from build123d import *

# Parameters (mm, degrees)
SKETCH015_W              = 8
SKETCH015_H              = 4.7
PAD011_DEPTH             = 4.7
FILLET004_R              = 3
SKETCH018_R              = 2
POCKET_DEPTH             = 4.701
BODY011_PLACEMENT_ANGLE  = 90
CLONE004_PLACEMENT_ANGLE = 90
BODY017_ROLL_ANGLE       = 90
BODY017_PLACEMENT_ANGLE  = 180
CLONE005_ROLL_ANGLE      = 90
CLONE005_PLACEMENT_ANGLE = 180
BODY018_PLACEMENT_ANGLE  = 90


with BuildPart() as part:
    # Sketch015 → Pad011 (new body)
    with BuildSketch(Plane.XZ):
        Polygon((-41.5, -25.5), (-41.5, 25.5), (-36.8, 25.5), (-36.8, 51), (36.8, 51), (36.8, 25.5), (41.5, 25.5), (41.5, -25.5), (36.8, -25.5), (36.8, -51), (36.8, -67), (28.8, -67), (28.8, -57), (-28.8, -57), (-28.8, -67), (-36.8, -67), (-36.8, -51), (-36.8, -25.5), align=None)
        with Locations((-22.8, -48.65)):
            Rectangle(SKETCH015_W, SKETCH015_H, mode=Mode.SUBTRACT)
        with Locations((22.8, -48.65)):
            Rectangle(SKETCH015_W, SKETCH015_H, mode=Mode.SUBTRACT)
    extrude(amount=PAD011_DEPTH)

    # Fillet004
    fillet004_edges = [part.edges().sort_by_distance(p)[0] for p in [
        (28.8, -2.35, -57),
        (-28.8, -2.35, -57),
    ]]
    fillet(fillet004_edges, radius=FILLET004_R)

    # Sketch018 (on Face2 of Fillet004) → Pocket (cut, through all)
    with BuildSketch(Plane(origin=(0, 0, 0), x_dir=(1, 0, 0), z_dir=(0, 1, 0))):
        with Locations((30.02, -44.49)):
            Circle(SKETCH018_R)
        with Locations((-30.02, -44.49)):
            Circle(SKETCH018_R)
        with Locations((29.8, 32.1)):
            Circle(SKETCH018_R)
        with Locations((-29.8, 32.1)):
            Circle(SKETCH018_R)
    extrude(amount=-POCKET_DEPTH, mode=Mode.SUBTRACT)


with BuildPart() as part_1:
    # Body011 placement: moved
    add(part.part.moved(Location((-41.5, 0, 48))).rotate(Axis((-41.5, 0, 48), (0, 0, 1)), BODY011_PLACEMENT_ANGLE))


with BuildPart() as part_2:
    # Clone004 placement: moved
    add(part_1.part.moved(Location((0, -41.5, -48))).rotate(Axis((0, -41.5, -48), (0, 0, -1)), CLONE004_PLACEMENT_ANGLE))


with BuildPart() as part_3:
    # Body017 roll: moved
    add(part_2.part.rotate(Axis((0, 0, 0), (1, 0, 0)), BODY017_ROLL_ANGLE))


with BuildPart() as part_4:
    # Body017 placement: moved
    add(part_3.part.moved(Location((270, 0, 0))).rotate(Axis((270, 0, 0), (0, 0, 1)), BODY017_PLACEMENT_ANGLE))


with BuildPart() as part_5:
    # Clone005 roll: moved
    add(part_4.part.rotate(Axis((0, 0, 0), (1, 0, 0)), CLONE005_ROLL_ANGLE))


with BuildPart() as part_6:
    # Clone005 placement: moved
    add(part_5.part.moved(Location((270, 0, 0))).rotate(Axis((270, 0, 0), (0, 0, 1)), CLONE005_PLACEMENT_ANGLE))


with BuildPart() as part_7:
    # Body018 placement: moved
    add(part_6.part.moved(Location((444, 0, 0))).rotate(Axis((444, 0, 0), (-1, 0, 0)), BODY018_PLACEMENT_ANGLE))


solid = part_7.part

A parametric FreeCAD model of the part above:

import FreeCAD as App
import Part
import Sketcher

V = App.Vector


def edges_at(feature, points):
    """Names of the edges that pass closest to the given points."""
    edges = feature.Shape.Edges
    near = lambda p: min(range(len(edges)), key=lambda i: edges[i].distToShape(Part.Vertex(*p))[0])
    return sorted({f"Edge{near(p) + 1}" for p in points})


def add_polygon(sketch, points):
    """Adds a closed chain of lines whose ends are joined by coincident constraints."""
    first, n = sketch.GeometryCount, len(points)
    for a, b in zip(points, points[1:] + points[:1]):
        sketch.addGeometry(Part.LineSegment(App.Vector(*a, 0), App.Vector(*b, 0)), False)
    for i in range(n):
        sketch.addConstraint(Sketcher.Constraint("Coincident", first + i, 2, first + (i + 1) % n, 1))

doc = App.newDocument("Part")
body = doc.addObject("PartDesign::Body", "Body")

# Sketch on XZ plane
sketch1 = body.newObject("Sketcher::SketchObject", "Sketch")
sketch1.AttachmentSupport = (doc.getObject("XZ_Plane"), [""])
sketch1.MapMode = "FlatFace"
add_polygon(sketch1, [(-41.5, 25.5), (-41.5, -25.5), (-36.8, -25.5), (-36.8, -67), (-28.8, -67), (-28.8, -57), (28.8, -57), (28.8, -67), (36.8, -67), (36.8, -25.5), (41.5, -25.5), (41.5, 25.5), (36.8, 25.5), (36.8, 51), (-36.8, 51), (-36.8, 25.5)])  # lines 0-15
add_polygon(sketch1, [(18.8, -51), (18.8, -46.3), (26.8, -46.3), (26.8, -51)])  # lines 16-19
add_polygon(sketch1, [(-26.8, -51), (-26.8, -46.3), (-18.8, -46.3), (-18.8, -51)])  # lines 20-23
sketch1.addConstraint(Sketcher.Constraint("Vertical", 0))
sketch1.addConstraint(Sketcher.Constraint("Horizontal", 1))
sketch1.addConstraint(Sketcher.Constraint("Vertical", 2))
sketch1.addConstraint(Sketcher.Constraint("Horizontal", 3))
sketch1.addConstraint(Sketcher.Constraint("Vertical", 4))
sketch1.addConstraint(Sketcher.Constraint("Horizontal", 5))
sketch1.addConstraint(Sketcher.Constraint("Vertical", 6))
sketch1.addConstraint(Sketcher.Constraint("Horizontal", 7))
sketch1.addConstraint(Sketcher.Constraint("Vertical", 8))
sketch1.addConstraint(Sketcher.Constraint("Horizontal", 9))
sketch1.addConstraint(Sketcher.Constraint("Vertical", 10))
sketch1.addConstraint(Sketcher.Constraint("Horizontal", 11))
sketch1.addConstraint(Sketcher.Constraint("Vertical", 12))
sketch1.addConstraint(Sketcher.Constraint("Horizontal", 13))
sketch1.addConstraint(Sketcher.Constraint("Vertical", 14))
sketch1.addConstraint(Sketcher.Constraint("Horizontal", 15))
sketch1.addConstraint(Sketcher.Constraint("Vertical", 16))
sketch1.addConstraint(Sketcher.Constraint("Horizontal", 17))
sketch1.addConstraint(Sketcher.Constraint("Vertical", 18))
sketch1.addConstraint(Sketcher.Constraint("Horizontal", 19))
sketch1.addConstraint(Sketcher.Constraint("Vertical", 20))
sketch1.addConstraint(Sketcher.Constraint("Horizontal", 21))
sketch1.addConstraint(Sketcher.Constraint("Vertical", 22))
sketch1.addConstraint(Sketcher.Constraint("Horizontal", 23))
sketch1.addConstraint(Sketcher.Constraint("Symmetric", 0, 2, 10, 2, -1, 1))
sketch1.addConstraint(Sketcher.Constraint("Symmetric", 8, 2, 14, 2, -1, 1))
sketch1.addConstraint(Sketcher.Constraint("Symmetric", 3, 2, 6, 2, -2))
sketch1.addConstraint(Sketcher.Constraint("Symmetric", 1, 2, 8, 2, -2))
sketch1.addConstraint(Sketcher.Constraint("Symmetric", 17, 2, 20, 2, -2))
sketch1.addConstraint(Sketcher.Constraint("Symmetric", 19, 2, 22, 2, -2))
sketch1.addConstraint(Sketcher.Constraint("Vertical", 8, 2, 11, 2))
sketch1.addConstraint(Sketcher.Constraint("Equal", 7, 17))
sketch1.addConstraint(Sketcher.Constraint("Equal", 15, 16))
sketch1.addConstraint(Sketcher.Constraint("DistanceX", 3, 1, 3, 2, 8.0))
sketch1.addConstraint(Sketcher.Constraint("DistanceY", 0, 2, 0, 1, 51.0))
sketch1.addConstraint(Sketcher.Constraint("DistanceY", 4, 1, 4, 2, 10.0))
sketch1.addConstraint(Sketcher.Constraint("DistanceX", 1, 1, 1, 2, 4.7))
sketch1.addConstraint(Sketcher.Constraint("DistanceX", 5, 1, 5, 2, 57.6))
sketch1.addConstraint(Sketcher.Constraint("DistanceY", 2, 2, 2, 1, 41.5))
sketch1.addConstraint(Sketcher.Constraint("DistanceY", 12, 1, 12, 2, 25.5))
sketch1.addConstraint(Sketcher.Constraint("DistanceY", 18, 2, -1, 1, 51.0))
sketch1.addConstraint(Sketcher.Constraint("DistanceX", 16, 2, 5, 2, 10.0))
pad1 = body.newObject("PartDesign::Pad", "Pad")
pad1.Profile = sketch1
pad1.Length = 4.7
doc.recompute()

fillet = body.newObject("PartDesign::Fillet", "Fillet")
fillet.Base = (pad1, edges_at(pad1, [(28.8, -2.35, -57), (-28.8, -2.35, -57)]))
fillet.Radius = 3

# Sketch on XZ plane
sketch2 = body.newObject("Sketcher::SketchObject", "Sketch001")
sketch2.AttachmentSupport = (doc.getObject("XZ_Plane"), [""])
sketch2.MapMode = "FlatFace"
sketch2.addGeometry(Part.Circle(V(30.02, 44.49, 0), V(0, 0, 1), 2), False)
sketch2.addGeometry(Part.Circle(V(-30.02, 44.49, 0), V(0, 0, 1), 2), False)
sketch2.addGeometry(Part.Circle(V(29.8, -32.1, 0), V(0, 0, 1), 2), False)
sketch2.addGeometry(Part.Circle(V(-29.8, -32.1, 0), V(0, 0, 1), 2), False)
sketch2.addConstraint(Sketcher.Constraint("Equal", 0, 1))
sketch2.addConstraint(Sketcher.Constraint("Equal", 1, 2))
sketch2.addConstraint(Sketcher.Constraint("Equal", 2, 3))
sketch2.addConstraint(Sketcher.Constraint("Symmetric", 0, 3, 1, 3, -2))
sketch2.addConstraint(Sketcher.Constraint("Symmetric", 2, 3, 3, 3, -2))
sketch2.addConstraint(Sketcher.Constraint("Diameter", 0, 4.0))
sketch2.addConstraint(Sketcher.Constraint("DistanceX", -1, 1, 2, 3, 29.8))
sketch2.addConstraint(Sketcher.Constraint("DistanceY", 2, 3, -1, 1, 32.1))
sketch2.addConstraint(Sketcher.Constraint("DistanceX", -1, 1, 0, 3, 30.02))
sketch2.addConstraint(Sketcher.Constraint("DistanceY", -1, 1, 0, 3, 44.49))
pocket1 = body.newObject("PartDesign::Pocket", "Pocket")
pocket1.Profile = sketch2
pocket1.Type = "ThroughAll"
pocket1.Reversed = True
body2 = doc.addObject("PartDesign::Body", "Body001")
doc.recompute()

body.Placement = App.Placement(V(-41.5, 0, 48), App.Rotation(V(0, 0, 1), 90))
boolean = body2.newObject("PartDesign::Boolean", "Boolean")
boolean.Type = "Fuse"
boolean.addObjects([body])
body3 = doc.addObject("PartDesign::Body", "Body002")
doc.recompute()

body2.Placement = App.Placement(V(0, -41.5, -48), App.Rotation(V(0, 0, -1), 90))
boolean2 = body3.newObject("PartDesign::Boolean", "Boolean001")
boolean2.Type = "Fuse"
boolean2.addObjects([body2])
body4 = doc.addObject("PartDesign::Body", "Body003")
doc.recompute()

body3.Placement = App.Placement(V(0, 0, 0), App.Rotation(V(1, 0, 0), 90))
boolean3 = body4.newObject("PartDesign::Boolean", "Boolean002")
boolean3.Type = "Fuse"
boolean3.addObjects([body3])
body5 = doc.addObject("PartDesign::Body", "Body004")
doc.recompute()

body4.Placement = App.Placement(V(270, 0, 0), App.Rotation(V(0, 0, 1), 180))
boolean4 = body5.newObject("PartDesign::Boolean", "Boolean003")
boolean4.Type = "Fuse"
boolean4.addObjects([body4])
body6 = doc.addObject("PartDesign::Body", "Body005")
doc.recompute()

body5.Placement = App.Placement(V(0, 0, 0), App.Rotation(V(1, 0, 0), 90))
boolean5 = body6.newObject("PartDesign::Boolean", "Boolean004")
boolean5.Type = "Fuse"
boolean5.addObjects([body5])
body7 = doc.addObject("PartDesign::Body", "Body006")
doc.recompute()

body6.Placement = App.Placement(V(270, 0, 0), App.Rotation(V(0, 0, 1), 180))
boolean6 = body7.newObject("PartDesign::Boolean", "Boolean005")
boolean6.Type = "Fuse"
boolean6.addObjects([body6])
body8 = doc.addObject("PartDesign::Body", "Body007")
doc.recompute()

body7.Placement = App.Placement(V(444, 0, 0), App.Rotation(V(-1, 0, 0), 90))
boolean7 = body8.newObject("PartDesign::Boolean", "Boolean006")
boolean7.Type = "Fuse"
boolean7.addObjects([body7])

doc.recompute()
